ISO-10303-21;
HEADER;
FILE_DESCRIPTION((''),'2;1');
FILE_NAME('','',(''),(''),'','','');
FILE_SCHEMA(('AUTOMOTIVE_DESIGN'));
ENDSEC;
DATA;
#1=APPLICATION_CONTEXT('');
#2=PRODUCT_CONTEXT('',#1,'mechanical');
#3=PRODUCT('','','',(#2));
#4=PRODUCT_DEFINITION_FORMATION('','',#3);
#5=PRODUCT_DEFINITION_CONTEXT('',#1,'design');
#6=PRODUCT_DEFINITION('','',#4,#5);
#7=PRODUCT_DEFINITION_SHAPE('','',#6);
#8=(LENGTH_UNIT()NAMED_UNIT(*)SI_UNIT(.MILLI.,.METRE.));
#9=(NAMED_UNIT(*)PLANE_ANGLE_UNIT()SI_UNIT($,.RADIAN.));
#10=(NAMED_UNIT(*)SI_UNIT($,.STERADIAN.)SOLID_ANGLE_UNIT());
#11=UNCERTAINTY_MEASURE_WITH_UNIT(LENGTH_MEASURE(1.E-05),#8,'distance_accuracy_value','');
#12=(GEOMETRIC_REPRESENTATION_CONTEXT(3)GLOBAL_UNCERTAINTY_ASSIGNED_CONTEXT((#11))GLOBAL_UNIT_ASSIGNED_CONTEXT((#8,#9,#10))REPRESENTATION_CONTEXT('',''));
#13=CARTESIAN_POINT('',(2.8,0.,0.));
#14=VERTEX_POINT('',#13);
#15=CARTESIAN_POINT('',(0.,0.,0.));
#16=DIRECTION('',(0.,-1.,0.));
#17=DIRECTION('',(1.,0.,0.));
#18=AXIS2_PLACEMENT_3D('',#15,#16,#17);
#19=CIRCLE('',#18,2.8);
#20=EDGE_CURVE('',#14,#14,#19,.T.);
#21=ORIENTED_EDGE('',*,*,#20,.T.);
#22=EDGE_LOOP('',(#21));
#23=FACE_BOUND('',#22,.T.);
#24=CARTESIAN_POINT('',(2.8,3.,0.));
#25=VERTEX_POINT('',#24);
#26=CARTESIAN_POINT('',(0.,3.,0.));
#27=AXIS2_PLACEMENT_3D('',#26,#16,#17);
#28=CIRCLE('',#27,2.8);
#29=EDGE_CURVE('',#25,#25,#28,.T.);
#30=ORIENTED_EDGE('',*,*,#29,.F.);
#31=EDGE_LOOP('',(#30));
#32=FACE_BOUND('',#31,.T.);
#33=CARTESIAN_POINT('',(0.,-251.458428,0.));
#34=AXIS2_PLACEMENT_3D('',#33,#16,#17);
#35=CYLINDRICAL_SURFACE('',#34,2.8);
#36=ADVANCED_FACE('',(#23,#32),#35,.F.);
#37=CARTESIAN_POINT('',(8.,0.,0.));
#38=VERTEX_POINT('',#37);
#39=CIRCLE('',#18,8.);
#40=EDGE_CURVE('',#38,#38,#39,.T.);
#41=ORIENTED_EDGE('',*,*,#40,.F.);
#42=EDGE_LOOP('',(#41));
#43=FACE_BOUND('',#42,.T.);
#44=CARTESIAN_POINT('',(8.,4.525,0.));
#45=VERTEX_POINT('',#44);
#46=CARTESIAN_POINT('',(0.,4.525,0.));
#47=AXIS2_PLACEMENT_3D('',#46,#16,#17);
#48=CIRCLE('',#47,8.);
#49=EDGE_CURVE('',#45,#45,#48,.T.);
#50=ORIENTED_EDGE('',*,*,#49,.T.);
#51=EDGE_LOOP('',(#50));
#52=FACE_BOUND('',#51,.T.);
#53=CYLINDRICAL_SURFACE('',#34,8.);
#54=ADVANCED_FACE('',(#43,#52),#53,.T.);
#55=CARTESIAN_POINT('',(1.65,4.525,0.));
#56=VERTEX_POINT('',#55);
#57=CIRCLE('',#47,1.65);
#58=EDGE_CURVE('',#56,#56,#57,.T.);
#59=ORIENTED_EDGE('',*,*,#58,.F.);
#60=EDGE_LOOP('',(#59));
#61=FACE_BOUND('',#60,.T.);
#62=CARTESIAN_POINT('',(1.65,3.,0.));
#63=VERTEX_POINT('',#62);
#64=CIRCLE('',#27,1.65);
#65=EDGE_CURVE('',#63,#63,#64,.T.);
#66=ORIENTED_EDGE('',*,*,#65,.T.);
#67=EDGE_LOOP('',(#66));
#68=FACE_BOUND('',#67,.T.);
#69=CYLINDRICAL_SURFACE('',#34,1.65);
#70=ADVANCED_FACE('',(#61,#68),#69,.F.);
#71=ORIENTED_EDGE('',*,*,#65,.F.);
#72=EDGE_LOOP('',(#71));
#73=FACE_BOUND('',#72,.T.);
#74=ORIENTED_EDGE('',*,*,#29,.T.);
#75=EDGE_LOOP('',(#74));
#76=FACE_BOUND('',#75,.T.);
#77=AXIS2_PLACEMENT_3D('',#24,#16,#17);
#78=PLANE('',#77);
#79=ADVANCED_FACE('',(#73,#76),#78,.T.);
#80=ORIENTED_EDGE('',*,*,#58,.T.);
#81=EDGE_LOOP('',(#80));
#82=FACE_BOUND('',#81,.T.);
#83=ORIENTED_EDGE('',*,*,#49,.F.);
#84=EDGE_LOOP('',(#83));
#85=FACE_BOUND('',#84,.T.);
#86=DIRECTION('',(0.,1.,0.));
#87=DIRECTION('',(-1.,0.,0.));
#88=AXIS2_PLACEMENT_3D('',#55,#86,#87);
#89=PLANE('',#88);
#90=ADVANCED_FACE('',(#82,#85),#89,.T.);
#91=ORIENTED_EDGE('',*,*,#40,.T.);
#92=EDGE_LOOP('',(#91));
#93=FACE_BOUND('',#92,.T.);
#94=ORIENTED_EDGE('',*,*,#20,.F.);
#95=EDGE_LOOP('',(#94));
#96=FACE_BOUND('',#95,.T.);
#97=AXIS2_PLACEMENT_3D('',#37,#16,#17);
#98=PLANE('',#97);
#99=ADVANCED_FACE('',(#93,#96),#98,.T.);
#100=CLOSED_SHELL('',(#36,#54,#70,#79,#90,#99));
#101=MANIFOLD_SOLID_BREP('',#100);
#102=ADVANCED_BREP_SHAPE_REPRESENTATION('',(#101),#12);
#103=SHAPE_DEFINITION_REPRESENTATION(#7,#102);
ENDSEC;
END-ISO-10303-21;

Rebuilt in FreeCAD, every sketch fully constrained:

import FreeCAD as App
import Part
import Sketcher
from FreeCAD import Vector

doc = App.newDocument("Part")
body = doc.addObject("PartDesign::Body", "Body")

# Sketch on XY plane
sketch1 = doc.addObject("Sketcher::SketchObject", "Sketch")
body.addObject(sketch1)
sketch1.AttachmentSupport = (doc.XY_Plane, [""])
sketch1.MapMode = "FlatFace"
sketch1.addGeometry(Part.LineSegment(Vector(2.8, 3, 0), Vector(2.8, 0, 0)), False)
sketch1.addGeometry(Part.LineSegment(Vector(2.8, 0, 0), Vector(8, 0, 0)), False)
sketch1.addGeometry(Part.LineSegment(Vector(8, 0, 0), Vector(8, 4.5, 0)), False)
sketch1.addGeometry(Part.LineSegment(Vector(8, 4.5, 0), Vector(1.6, 4.5, 0)), False)
sketch1.addGeometry(Part.LineSegment(Vector(1.6, 4.5, 0), Vector(1.6, 3, 0)), False)
sketch1.addGeometry(Part.LineSegment(Vector(1.6, 3, 0), Vector(2.8, 3, 0)), False)
sketch1.addConstraint(Sketcher.Constraint("Coincident", 0, 2, 1, 1))
sketch1.addConstraint(Sketcher.Constraint("Coincident", 1, 2, 2, 1))
sketch1.addConstraint(Sketcher.Constraint("Coincident", 2, 2, 3, 1))
sketch1.addConstraint(Sketcher.Constraint("Coincident", 3, 2, 4, 1))
sketch1.addConstraint(Sketcher.Constraint("Coincident", 4, 2, 5, 1))
sketch1.addConstraint(Sketcher.Constraint("Coincident", 5, 2, 0, 1))
sketch1.addConstraint(Sketcher.Constraint("Vertical", 0))
sketch1.addConstraint(Sketcher.Constraint("Horizontal", 1))
sketch1.addConstraint(Sketcher.Constraint("Vertical", 2))
sketch1.addConstraint(Sketcher.Constraint("Horizontal", 3))
sketch1.addConstraint(Sketcher.Constraint("Vertical", 4))
sketch1.addConstraint(Sketcher.Constraint("Horizontal", 5))
sketch1.addConstraint(Sketcher.Constraint("PointOnObject", 0, 2, -1))
sketch1.addConstraint(Sketcher.Constraint("DistanceY", 0, 2, 0, 1, 3.0))
sketch1.addConstraint(Sketcher.Constraint("DistanceX", 1, 1, 1, 2, 5.2))
sketch1.addConstraint(Sketcher.Constraint("DistanceX", -1, 1, 1, 2, 8.0))
sketch1.addConstraint(Sketcher.Constraint("DistanceX", 3, 2, 3, 1, 6.35))
sketch1.addConstraint(Sketcher.Constraint("DistanceY", 2, 1, 2, 2, 4.525))
revolution = doc.addObject("PartDesign::Revolution", "Revolution")
body.addObject(revolution)
revolution.Profile = sketch1
revolution.ReferenceAxis = (sketch1, ["V_Axis"])
revolution.Angle = 360

doc.recompute()
